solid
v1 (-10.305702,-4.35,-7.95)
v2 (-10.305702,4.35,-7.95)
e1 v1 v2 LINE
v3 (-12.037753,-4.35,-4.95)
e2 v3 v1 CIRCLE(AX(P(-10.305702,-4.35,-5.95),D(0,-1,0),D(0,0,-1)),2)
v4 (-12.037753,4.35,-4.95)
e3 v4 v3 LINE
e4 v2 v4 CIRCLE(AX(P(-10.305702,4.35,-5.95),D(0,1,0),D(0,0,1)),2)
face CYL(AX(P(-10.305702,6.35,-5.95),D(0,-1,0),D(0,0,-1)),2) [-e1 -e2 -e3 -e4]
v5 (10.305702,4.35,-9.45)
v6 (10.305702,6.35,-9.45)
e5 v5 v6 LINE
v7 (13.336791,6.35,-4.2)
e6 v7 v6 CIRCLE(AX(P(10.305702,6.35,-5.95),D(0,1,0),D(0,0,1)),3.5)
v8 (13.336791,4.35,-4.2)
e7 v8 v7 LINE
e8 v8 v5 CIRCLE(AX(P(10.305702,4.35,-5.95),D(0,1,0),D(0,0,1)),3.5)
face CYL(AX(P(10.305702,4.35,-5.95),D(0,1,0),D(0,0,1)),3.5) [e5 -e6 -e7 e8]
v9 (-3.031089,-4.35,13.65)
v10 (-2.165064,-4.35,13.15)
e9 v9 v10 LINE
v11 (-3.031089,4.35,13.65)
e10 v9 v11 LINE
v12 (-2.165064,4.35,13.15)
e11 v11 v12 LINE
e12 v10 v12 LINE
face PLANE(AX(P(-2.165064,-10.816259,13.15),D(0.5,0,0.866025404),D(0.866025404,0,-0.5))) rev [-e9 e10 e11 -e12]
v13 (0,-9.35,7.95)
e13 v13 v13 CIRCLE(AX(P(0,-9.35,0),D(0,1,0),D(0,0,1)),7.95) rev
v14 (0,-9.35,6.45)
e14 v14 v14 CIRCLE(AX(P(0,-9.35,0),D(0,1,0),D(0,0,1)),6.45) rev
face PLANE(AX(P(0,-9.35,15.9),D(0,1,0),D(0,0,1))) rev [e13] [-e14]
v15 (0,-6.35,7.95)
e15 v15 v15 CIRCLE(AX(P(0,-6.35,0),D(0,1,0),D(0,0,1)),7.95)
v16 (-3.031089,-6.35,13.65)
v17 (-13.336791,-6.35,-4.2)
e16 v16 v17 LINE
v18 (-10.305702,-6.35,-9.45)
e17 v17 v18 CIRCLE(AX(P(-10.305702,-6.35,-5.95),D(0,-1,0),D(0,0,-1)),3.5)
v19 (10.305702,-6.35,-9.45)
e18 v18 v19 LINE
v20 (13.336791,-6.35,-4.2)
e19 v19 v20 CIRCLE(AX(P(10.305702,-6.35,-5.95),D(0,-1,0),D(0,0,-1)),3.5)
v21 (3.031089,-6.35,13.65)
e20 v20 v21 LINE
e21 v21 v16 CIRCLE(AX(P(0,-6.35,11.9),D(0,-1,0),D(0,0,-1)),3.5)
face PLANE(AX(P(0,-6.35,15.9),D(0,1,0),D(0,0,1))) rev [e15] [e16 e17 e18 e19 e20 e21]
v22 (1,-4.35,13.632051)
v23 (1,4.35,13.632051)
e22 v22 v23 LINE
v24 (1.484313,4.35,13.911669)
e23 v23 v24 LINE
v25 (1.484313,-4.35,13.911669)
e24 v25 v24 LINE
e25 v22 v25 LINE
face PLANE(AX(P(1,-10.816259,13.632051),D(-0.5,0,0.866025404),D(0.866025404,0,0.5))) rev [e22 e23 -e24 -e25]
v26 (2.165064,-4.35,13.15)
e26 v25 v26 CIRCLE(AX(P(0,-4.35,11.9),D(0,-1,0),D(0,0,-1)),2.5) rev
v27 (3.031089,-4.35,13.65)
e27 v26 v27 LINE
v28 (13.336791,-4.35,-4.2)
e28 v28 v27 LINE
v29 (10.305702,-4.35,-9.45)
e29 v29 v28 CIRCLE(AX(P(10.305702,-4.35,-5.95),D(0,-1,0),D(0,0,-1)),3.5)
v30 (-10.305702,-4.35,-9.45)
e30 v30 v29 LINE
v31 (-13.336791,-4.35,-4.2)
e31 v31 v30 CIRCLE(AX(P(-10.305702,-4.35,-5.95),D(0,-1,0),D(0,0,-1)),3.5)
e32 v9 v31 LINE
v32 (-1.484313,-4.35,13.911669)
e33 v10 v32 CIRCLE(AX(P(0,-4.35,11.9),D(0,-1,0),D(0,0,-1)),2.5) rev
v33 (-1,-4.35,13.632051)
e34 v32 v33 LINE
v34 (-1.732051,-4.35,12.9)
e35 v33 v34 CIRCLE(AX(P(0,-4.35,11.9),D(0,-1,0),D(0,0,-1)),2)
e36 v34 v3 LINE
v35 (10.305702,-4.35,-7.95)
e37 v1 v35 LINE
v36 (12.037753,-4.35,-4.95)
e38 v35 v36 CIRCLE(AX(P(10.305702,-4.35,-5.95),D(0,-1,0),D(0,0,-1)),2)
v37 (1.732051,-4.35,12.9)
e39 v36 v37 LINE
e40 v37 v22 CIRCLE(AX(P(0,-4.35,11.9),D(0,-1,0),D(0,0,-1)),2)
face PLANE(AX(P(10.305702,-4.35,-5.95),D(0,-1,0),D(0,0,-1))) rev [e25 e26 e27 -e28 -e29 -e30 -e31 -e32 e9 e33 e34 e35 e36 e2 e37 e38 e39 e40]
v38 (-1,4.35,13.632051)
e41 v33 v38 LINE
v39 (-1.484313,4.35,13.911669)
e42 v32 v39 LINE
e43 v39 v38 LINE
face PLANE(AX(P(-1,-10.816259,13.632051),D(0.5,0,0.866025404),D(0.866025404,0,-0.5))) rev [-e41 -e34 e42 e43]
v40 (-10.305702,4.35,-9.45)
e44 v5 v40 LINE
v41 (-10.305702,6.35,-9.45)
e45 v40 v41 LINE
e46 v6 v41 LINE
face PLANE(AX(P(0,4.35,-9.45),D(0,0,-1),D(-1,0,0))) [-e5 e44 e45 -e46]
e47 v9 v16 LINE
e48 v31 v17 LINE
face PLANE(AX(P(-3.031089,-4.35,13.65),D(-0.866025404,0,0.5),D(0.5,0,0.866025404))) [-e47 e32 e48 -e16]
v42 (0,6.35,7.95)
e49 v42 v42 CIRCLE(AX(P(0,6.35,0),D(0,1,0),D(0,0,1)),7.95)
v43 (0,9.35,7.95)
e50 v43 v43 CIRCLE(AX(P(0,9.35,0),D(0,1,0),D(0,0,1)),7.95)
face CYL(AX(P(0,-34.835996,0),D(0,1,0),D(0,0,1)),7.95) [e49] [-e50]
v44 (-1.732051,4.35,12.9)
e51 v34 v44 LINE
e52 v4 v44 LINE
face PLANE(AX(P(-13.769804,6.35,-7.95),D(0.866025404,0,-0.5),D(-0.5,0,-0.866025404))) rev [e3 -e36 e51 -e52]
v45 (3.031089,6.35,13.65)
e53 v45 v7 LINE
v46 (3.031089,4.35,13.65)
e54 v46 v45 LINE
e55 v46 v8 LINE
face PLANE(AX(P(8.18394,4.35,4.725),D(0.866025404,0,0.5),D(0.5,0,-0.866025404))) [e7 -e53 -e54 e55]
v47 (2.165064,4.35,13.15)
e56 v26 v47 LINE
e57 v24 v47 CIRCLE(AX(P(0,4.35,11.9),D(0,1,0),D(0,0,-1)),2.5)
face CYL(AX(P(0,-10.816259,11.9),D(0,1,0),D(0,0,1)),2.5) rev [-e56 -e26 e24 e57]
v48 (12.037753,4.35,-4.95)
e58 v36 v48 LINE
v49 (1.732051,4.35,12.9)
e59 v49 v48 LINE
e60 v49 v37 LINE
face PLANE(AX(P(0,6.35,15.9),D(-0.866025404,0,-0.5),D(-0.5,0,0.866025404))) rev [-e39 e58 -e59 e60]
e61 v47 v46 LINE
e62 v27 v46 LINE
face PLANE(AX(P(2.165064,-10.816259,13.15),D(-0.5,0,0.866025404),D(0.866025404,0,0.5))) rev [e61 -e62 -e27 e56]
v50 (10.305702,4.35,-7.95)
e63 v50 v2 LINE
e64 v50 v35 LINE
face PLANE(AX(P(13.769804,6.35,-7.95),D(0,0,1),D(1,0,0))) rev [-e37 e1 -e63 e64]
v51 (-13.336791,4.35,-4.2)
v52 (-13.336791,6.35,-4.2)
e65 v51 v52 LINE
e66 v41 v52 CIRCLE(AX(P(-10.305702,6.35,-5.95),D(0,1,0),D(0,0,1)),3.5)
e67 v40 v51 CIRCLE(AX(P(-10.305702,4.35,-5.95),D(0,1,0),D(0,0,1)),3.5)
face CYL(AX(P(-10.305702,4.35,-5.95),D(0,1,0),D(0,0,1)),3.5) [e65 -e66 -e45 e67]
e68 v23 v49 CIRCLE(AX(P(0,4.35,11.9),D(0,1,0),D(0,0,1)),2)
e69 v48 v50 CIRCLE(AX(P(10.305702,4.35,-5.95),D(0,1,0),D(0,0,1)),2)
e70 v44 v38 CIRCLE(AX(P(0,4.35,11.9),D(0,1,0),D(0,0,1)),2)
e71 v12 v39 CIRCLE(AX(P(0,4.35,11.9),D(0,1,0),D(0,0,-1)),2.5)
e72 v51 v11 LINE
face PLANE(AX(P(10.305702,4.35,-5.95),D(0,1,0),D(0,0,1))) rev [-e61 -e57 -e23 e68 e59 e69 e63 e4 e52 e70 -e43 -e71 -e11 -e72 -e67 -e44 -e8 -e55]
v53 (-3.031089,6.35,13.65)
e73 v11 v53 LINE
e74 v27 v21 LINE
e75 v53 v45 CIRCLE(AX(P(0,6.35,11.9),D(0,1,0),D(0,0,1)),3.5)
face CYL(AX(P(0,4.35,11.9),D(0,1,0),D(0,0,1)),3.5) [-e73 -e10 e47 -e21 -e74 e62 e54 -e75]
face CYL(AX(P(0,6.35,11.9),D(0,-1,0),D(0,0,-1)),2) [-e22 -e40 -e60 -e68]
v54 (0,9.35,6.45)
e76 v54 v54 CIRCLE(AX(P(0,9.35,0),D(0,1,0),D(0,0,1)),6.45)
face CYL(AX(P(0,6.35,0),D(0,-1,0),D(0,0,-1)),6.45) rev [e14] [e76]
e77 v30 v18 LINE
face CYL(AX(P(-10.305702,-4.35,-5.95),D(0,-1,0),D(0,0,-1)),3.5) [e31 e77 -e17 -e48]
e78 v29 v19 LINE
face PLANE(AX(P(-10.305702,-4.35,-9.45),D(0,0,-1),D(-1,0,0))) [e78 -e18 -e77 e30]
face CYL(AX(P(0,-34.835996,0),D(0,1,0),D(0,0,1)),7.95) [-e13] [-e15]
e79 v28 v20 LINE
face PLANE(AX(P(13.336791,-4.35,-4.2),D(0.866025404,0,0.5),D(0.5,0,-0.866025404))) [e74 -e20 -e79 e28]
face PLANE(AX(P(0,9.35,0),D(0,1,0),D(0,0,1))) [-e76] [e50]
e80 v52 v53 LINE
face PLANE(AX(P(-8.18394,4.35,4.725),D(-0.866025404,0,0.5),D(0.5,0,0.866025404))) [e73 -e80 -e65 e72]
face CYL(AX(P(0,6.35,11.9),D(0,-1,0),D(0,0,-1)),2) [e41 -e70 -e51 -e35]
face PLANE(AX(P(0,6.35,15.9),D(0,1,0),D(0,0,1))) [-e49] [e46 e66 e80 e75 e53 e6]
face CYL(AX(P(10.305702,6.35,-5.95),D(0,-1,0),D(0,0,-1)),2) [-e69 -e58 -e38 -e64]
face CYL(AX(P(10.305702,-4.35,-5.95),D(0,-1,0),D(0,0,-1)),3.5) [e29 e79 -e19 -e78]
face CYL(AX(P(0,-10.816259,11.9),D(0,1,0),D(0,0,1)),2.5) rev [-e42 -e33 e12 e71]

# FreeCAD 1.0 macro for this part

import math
import FreeCAD as App
import Part
import Sketcher
from FreeCAD import Vector
Q = App.Units.Quantity


def edges_at(feature, points):
    """Names of the edges that pass closest to the given points."""
    edges = feature.Shape.Edges
    near = lambda p: min(range(len(edges)), key=lambda i: edges[i].distToShape(Part.Vertex(*p))[0])
    return sorted({f"Edge{near(p) + 1}" for p in points})

doc = App.newDocument("Part")
body = doc.addObject("PartDesign::Body", "Body")

# Sketch on XZ plane
sketch1 = body.newObject("Sketcher::SketchObject", "Sketch")
sketch1.AttachmentSupport = (doc.getObject("XZ_Plane"), [""])
sketch1.MapMode = "FlatFace"
sketch1.addGeometry(Part.LineSegment(Vector(0, 16, 0), Vector(14, -8, 0)), False)
sketch1.addGeometry(Part.LineSegment(Vector(14, -8, 0), Vector(-14, -8, 0)), False)
sketch1.addGeometry(Part.LineSegment(Vector(-14, -8, 0), Vector(0, 16, 0)), False)
sketch1.addGeometry(Part.Circle(Vector(0, 0, 0), Vector(0, 0, 1), 6), False)
sketch1.addConstraint(Sketcher.Constraint("Coincident", 0, 2, 1, 1))
sketch1.addConstraint(Sketcher.Constraint("Coincident", 1, 2, 2, 1))
sketch1.addConstraint(Sketcher.Constraint("Coincident", 2, 2, 0, 1))
sketch1.addConstraint(Sketcher.Constraint("Horizontal", 1))
sketch1.addConstraint(Sketcher.Constraint("Coincident", 3, 3, -1, 1))
sketch1.addConstraint(Sketcher.Constraint("PointOnObject", 2, 2, -2))
sketch1.addConstraint(Sketcher.Constraint("Equal", 0, 2))
sketch1.addConstraint(Sketcher.Constraint("Diameter", 3, 12.9))
sketch1.addConstraint(Sketcher.Constraint("Angle", 0, Q("-60 deg")))
sketch1.addConstraint(Sketcher.Constraint("DistanceY", -1, 1, 2, 2, 15.9))
sketch1.addConstraint(Sketcher.Constraint("DistanceY", 0, 2, -1, 1, 7.95))
pad1 = body.newObject("PartDesign::Pad", "Pad")
pad1.Profile = sketch1
pad1.Length = 12.7
pad1.Midplane = True
doc.recompute()

fillet = body.newObject("PartDesign::Fillet", "Fillet")
fillet.Base = (pad1, edges_at(pad1, [(-13.77, 0, -7.95), (13.77, 0, -7.95), (0, 0, 15.9)]))
fillet.Radius = 2

# Sketch on XZ plane
sketch2 = body.newObject("Sketcher::SketchObject", "Sketch001")
sketch2.AttachmentSupport = (doc.getObject("XZ_Plane"), [""])
sketch2.MapMode = "FlatFace"
sketch2.AttachmentOffset = App.Placement(Vector(0, 0, -6.35), App.Rotation())
sketch2.addGeometry(Part.Circle(Vector(0, 0, 0), Vector(0, 0, 1), 8), False)
sketch2.addGeometry(Part.Circle(Vector(0, 0, 0), Vector(0, 0, 1), 6), False)
sketch2.addConstraint(Sketcher.Constraint("Coincident", 0, 3, -1, 1))
sketch2.addConstraint(Sketcher.Constraint("Coincident", 1, 3, -1, 1))
sketch2.addConstraint(Sketcher.Constraint("Diameter", 0, 15.9))
sketch2.addConstraint(Sketcher.Constraint("Diameter", 1, 12.9))
pad2 = body.newObject("PartDesign::Pad", "Pad001")
pad2.Profile = sketch2
pad2.Type = "TwoLengths"
pad2.Length = 3
pad2.Length2 = 15.7
pad2.Reversed = True

# Sketch on XZ plane
sketch3 = body.newObject("Sketcher::SketchObject", "Sketch002")
sketch3.AttachmentSupport = (doc.getObject("XZ_Plane"), [""])
sketch3.MapMode = "FlatFace"
sketch3.AttachmentOffset = App.Placement(Vector(0, 0, -6.35), App.Rotation())
sketch3.addGeometry(Part.LineSegment(Vector(8.2, 4.7, 0), Vector(13.3, -4.2, 0)), False)
sketch3.addGeometry(Part.ArcOfCircle(Part.Circle(Vector(10.3, -6, 0), Vector(0, 0, 1), 3.5), math.radians(-90), math.radians(30)), False)
sketch3.addGeometry(Part.LineSegment(Vector(10.3, -9.4, 0), Vector(-10.3, -9.4, 0)), False)
sketch3.addGeometry(Part.ArcOfCircle(Part.Circle(Vector(-10.3, -6, 0), Vector(0, 0, 1), 3.5), math.radians(150), math.radians(270)), False)
sketch3.addGeometry(Part.LineSegment(Vector(-13.3, -4.2, 0), Vector(-8.2, 4.7, 0)), False)
sketch3.addGeometry(Part.LineSegment(Vector(-8.2, 4.7, 0), Vector(-3, 13.7, 0)), False)
sketch3.addGeometry(Part.ArcOfCircle(Part.Circle(Vector(0, 11.9, 0), Vector(0, 0, 1), 3.5), math.radians(30), math.radians(150)), False)
sketch3.addGeometry(Part.LineSegment(Vector(3, 13.7, 0), Vector(8.2, 4.7, 0)), False)
sketch3.addGeometry(Part.LineSegment(Vector(12, -5, 0), Vector(6.9, 4, 0)), False)
sketch3.addGeometry(Part.LineSegment(Vector(6.9, 4, 0), Vector(1.7, 12.9, 0)), False)
sketch3.addGeometry(Part.ArcOfCircle(Part.Circle(Vector(0, 11.9, 0), Vector(0, 0, 1), 2), math.radians(30), math.radians(150)), False)
sketch3.addGeometry(Part.LineSegment(Vector(-1.7, 12.9, 0), Vector(-6.9, 4, 0)), False)
sketch3.addGeometry(Part.LineSegment(Vector(-6.9, 4, 0), Vector(-12, -5, 0)), False)
sketch3.addGeometry(Part.ArcOfCircle(Part.Circle(Vector(-10.3, -6, 0), Vector(0, 0, 1), 2), math.radians(150), math.radians(270)), False)
sketch3.addGeometry(Part.LineSegment(Vector(-10.3, -8, 0), Vector(10.3, -8, 0)), False)
sketch3.addGeometry(Part.ArcOfCircle(Part.Circle(Vector(10.3, -6, 0), Vector(0, 0, 1), 2), math.radians(-90), math.radians(30)), False)
sketch3.addConstraint(Sketcher.Constraint("Tangent", 0, 2, 1, 2))
sketch3.addConstraint(Sketcher.Constraint("Tangent", 1, 1, 2, 1))
sketch3.addConstraint(Sketcher.Constraint("Tangent", 2, 2, 3, 2))
sketch3.addConstraint(Sketcher.Constraint("Tangent", 3, 1, 4, 1))
sketch3.addConstraint(Sketcher.Constraint("Coincident", 4, 2, 5, 1))
sketch3.addConstraint(Sketcher.Constraint("Tangent", 5, 2, 6, 2))
sketch3.addConstraint(Sketcher.Constraint("Tangent", 6, 1, 7, 1))
sketch3.addConstraint(Sketcher.Constraint("Coincident", 7, 2, 0, 1))
sketch3.addConstraint(Sketcher.Constraint("Coincident", 8, 2, 9, 1))
sketch3.addConstraint(Sketcher.Constraint("Tangent", 9, 2, 10, 1))
sketch3.addConstraint(Sketcher.Constraint("Tangent", 10, 2, 11, 1))
sketch3.addConstraint(Sketcher.Constraint("Coincident", 11, 2, 12, 1))
sketch3.addConstraint(Sketcher.Constraint("Tangent", 12, 2, 13, 1))
sketch3.addConstraint(Sketcher.Constraint("Tangent", 13, 2, 14, 1))
sketch3.addConstraint(Sketcher.Constraint("Tangent", 14, 2, 15, 1))
sketch3.addConstraint(Sketcher.Constraint("Tangent", 15, 2, 8, 1))
sketch3.addConstraint(Sketcher.Constraint("Horizontal", 2))
sketch3.addConstraint(Sketcher.Constraint("Horizontal", 14))
sketch3.addConstraint(Sketcher.Constraint("Coincident", 10, 3, 6, 3))
sketch3.addConstraint(Sketcher.Constraint("Coincident", 13, 3, 3, 3))
sketch3.addConstraint(Sketcher.Constraint("Coincident", 15, 3, 1, 3))
sketch3.addConstraint(Sketcher.Constraint("Equal", 1, 3))
sketch3.addConstraint(Sketcher.Constraint("Equal", 3, 6))
sketch3.addConstraint(Sketcher.Constraint("Equal", 10, 13))
sketch3.addConstraint(Sketcher.Constraint("Symmetric", 0, 2, 3, 1, -2))
sketch3.addConstraint(Sketcher.Constraint("Symmetric", 9, 2, 10, 2, -2))
sketch3.addConstraint(Sketcher.Constraint("Parallel", 4, 5))
sketch3.addConstraint(Sketcher.Constraint("Parallel", 7, 8))
sketch3.addConstraint(Sketcher.Constraint("Horizontal", 4, 2, 7, 2))
sketch3.addConstraint(Sketcher.Constraint("Horizontal", 8, 2, 11, 2))
sketch3.addConstraint(Sketcher.Constraint("Equal", 4, 5))
sketch3.addConstraint(Sketcher.Constraint("Equal", 7, 8))
sketch3.addConstraint(Sketcher.Constraint("Radius", 10, 2.0))
sketch3.addConstraint(Sketcher.Constraint("Radius", 1, 3.5))
sketch3.addConstraint(Sketcher.Constraint("Angle", 0, Q("-60 deg")))
sketch3.addConstraint(Sketcher.Constraint("DistanceY", -1, 1, 6, 3, 11.9))
sketch3.addConstraint(Sketcher.Constraint("DistanceY", 0, 2, -1, 1, 4.2))
pad3 = body.newObject("PartDesign::Pad", "Pad002")
pad3.Profile = sketch3
pad3.Length = 2

# Sketch on XZ plane
sketch4 = body.newObject("Sketcher::SketchObject", "Sketch003")
sketch4.AttachmentSupport = (doc.getObject("XZ_Plane"), [""])
sketch4.MapMode = "FlatFace"
sketch4.AttachmentOffset = App.Placement(Vector(0, 0, 6.35), App.Rotation())
sketch4.addGeometry(Part.LineSegment(Vector(13.3, -4.2, 0), Vector(3, 13.7, 0)), False)
sketch4.addGeometry(Part.ArcOfCircle(Part.Circle(Vector(0, 11.9, 0), Vector(0, 0, 1), 3.5), math.radians(30), math.radians(150)), False)
sketch4.addGeometry(Part.LineSegment(Vector(-3, 13.7, 0), Vector(-13.3, -4.2, 0)), False)
sketch4.addGeometry(Part.ArcOfCircle(Part.Circle(Vector(-10.3, -6, 0), Vector(0, 0, 1), 3.5), math.radians(150), math.radians(270)), False)
sketch4.addGeometry(Part.LineSegment(Vector(-10.3, -9.4, 0), Vector(10.3, -9.4, 0)), False)
sketch4.addGeometry(Part.ArcOfCircle(Part.Circle(Vector(10.3, -6, 0), Vector(0, 0, 1), 3.5), math.radians(-90), math.radians(30)), False)
sketch4.addGeometry(Part.ArcOfCircle(Part.Circle(Vector(10.3, -6, 0), Vector(0, 0, 1), 2), math.radians(-90), math.radians(30)), False)
sketch4.addGeometry(Part.LineSegment(Vector(10.3, -8, 0), Vector(-10.3, -8, 0)), False)
sketch4.addGeometry(Part.ArcOfCircle(Part.Circle(Vector(-10.3, -6, 0), Vector(0, 0, 1), 2), math.radians(150), math.radians(270)), False)
sketch4.addGeometry(Part.LineSegment(Vector(-12, -5, 0), Vector(-1.7, 12.9, 0)), False)
sketch4.addGeometry(Part.ArcOfCircle(Part.Circle(Vector(0, 11.9, 0), Vector(0, 0, 1), 2), math.radians(30), math.radians(150)), False)
sketch4.addGeometry(Part.LineSegment(Vector(1.7, 12.9, 0), Vector(12, -5, 0)), False)
sketch4.addConstraint(Sketcher.Constraint("Tangent", 0, 2, 1, 1))
sketch4.addConstraint(Sketcher.Constraint("Tangent", 1, 2, 2, 1))
sketch4.addConstraint(Sketcher.Constraint("Tangent", 2, 2, 3, 1))
sketch4.addConstraint(Sketcher.Constraint("Tangent", 3, 2, 4, 1))
sketch4.addConstraint(Sketcher.Constraint("Tangent", 4, 2, 5, 1))
sketch4.addConstraint(Sketcher.Constraint("Tangent", 5, 2, 0, 1))
sketch4.addConstraint(Sketcher.Constraint("Tangent", 6, 1, 7, 1))
sketch4.addConstraint(Sketcher.Constraint("Tangent", 7, 2, 8, 2))
sketch4.addConstraint(Sketcher.Constraint("Tangent", 8, 1, 9, 1))
sketch4.addConstraint(Sketcher.Constraint("Tangent", 9, 2, 10, 2))
sketch4.addConstraint(Sketcher.Constraint("Tangent", 10, 1, 11, 1))
sketch4.addConstraint(Sketcher.Constraint("Tangent", 11, 2, 6, 2))
sketch4.addConstraint(Sketcher.Constraint("Horizontal", 4))
sketch4.addConstraint(Sketcher.Constraint("Horizontal", 7))
sketch4.addConstraint(Sketcher.Constraint("Coincident", 6, 3, 5, 3))
sketch4.addConstraint(Sketcher.Constraint("Coincident", 8, 3, 3, 3))
sketch4.addConstraint(Sketcher.Constraint("Coincident", 10, 3, 1, 3))
sketch4.addConstraint(Sketcher.Constraint("Equal", 1, 3))
sketch4.addConstraint(Sketcher.Constraint("Equal", 3, 5))
sketch4.addConstraint(Sketcher.Constraint("Equal", 8, 10))
sketch4.addConstraint(Sketcher.Constraint("Symmetric", 0, 2, 1, 2, -2))
sketch4.addConstraint(Sketcher.Constraint("Radius", 6, 2.0))
sketch4.addConstraint(Sketcher.Constraint("Radius", 1, 3.5))
sketch4.addConstraint(Sketcher.Constraint("Angle", 0, Q("120 deg")))
sketch4.addConstraint(Sketcher.Constraint("DistanceY", -1, 1, 1, 3, 11.9))
sketch4.addConstraint(Sketcher.Constraint("DistanceY", 2, 2, -1, 1, 4.2))
pad4 = body.newObject("PartDesign::Pad", "Pad003")
pad4.Profile = sketch4
pad4.Length = 2
pad4.Reversed = True

# Sketch on XZ plane
sketch5 = body.newObject("Sketcher::SketchObject", "Sketch004")
sketch5.AttachmentSupport = (doc.getObject("XZ_Plane"), [""])
sketch5.MapMode = "FlatFace"
sketch5.AttachmentOffset = App.Placement(Vector(0, 0, -4.35), App.Rotation())
sketch5.addGeometry(Part.LineSegment(Vector(-3, 13.7, 0), Vector(-2.2, 13.2, 0)), False)
sketch5.addGeometry(Part.ArcOfCircle(Part.Circle(Vector(0, 11.9, 0), Vector(0, 0, 1), 2.5), math.radians(126), math.radians(150)), False)
sketch5.addGeometry(Part.LineSegment(Vector(-1.5, 13.9, 0), Vector(-1, 13.6, 0)), False)
sketch5.addGeometry(Part.ArcOfCircle(Part.Circle(Vector(0, 11.9, 0), Vector(0, 0, 1), 2), math.radians(60), math.radians(120)), False)
sketch5.addGeometry(Part.LineSegment(Vector(1, 13.6, 0), Vector(1.5, 13.9, 0)), False)
sketch5.addGeometry(Part.ArcOfCircle(Part.Circle(Vector(0, 11.9, 0), Vector(0, 0, 1), 2.5), math.radians(30), math.radians(54)), False)
sketch5.addGeometry(Part.LineSegment(Vector(2.2, 13.2, 0), Vector(3, 13.7, 0)), False)
sketch5.addGeometry(Part.ArcOfCircle(Part.Circle(Vector(0, 11.9, 0), Vector(0, 0, 1), 3.5), math.radians(30), math.radians(150)), False)
sketch5.addConstraint(Sketcher.Constraint("Coincident", 0, 2, 1, 2))
sketch5.addConstraint(Sketcher.Constraint("Coincident", 1, 1, 2, 1))
sketch5.addConstraint(Sketcher.Constraint("Coincident", 2, 2, 3, 2))
sketch5.addConstraint(Sketcher.Constraint("Coincident", 3, 1, 4, 1))
sketch5.addConstraint(Sketcher.Constraint("Coincident", 4, 2, 5, 2))
sketch5.addConstraint(Sketcher.Constraint("Coincident", 5, 1, 6, 1))
sketch5.addConstraint(Sketcher.Constraint("Coincident", 6, 2, 7, 1))
sketch5.addConstraint(Sketcher.Constraint("Coincident", 7, 2, 0, 1))
sketch5.addConstraint(Sketcher.Constraint("Coincident", 3, 3, 1, 3))
sketch5.addConstraint(Sketcher.Constraint("Coincident", 5, 3, 1, 3))
sketch5.addConstraint(Sketcher.Constraint("Coincident", 7, 3, 1, 3))
sketch5.addConstraint(Sketcher.Constraint("Equal", 1, 5))
sketch5.addConstraint(Sketcher.Constraint("Symmetric", 2, 2, 3, 1, -2))
sketch5.addConstraint(Sketcher.Constraint("Parallel", 0, 2))
sketch5.addConstraint(Sketcher.Constraint("Parallel", 4, 6))
sketch5.addConstraint(Sketcher.Constraint("Horizontal", 1, 1, 4, 2))
sketch5.addConstraint(Sketcher.Constraint("Horizontal", 0, 2, 5, 1))
sketch5.addConstraint(Sketcher.Constraint("Radius", 3, 2.0))
sketch5.addConstraint(Sketcher.Constraint("Radius", 1, 2.5))
sketch5.addConstraint(Sketcher.Constraint("Radius", 7, 3.5))
sketch5.addConstraint(Sketcher.Constraint("Angle", 0, Q("-30 deg")))
sketch5.addConstraint(Sketcher.Constraint("DistanceX", 2, 2, -1, 1, 1.0))
sketch5.addConstraint(Sketcher.Constraint("DistanceY", -1, 1, 1, 3, 11.9))
sketch5.addConstraint(Sketcher.Constraint("DistanceY", -1, 1, 0, 2, 13.15))
pad5 = body.newObject("PartDesign::Pad", "Pad004")
pad5.Profile = sketch5
pad5.Length = 8.7

doc.recompute()
